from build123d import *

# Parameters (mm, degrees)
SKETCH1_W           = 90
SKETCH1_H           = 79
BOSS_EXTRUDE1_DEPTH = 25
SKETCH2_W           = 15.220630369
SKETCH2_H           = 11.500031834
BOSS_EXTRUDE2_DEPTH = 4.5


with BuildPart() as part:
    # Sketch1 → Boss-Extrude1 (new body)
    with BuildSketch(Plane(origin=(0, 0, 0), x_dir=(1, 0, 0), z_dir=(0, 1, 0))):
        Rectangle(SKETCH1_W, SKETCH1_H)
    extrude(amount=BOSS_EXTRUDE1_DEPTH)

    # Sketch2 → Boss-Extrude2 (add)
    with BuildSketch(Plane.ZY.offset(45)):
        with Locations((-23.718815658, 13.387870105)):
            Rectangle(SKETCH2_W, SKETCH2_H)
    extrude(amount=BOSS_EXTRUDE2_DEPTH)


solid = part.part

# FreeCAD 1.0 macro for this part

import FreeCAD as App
import Part
import Sketcher
from FreeCAD import Vector

doc = App.newDocument("Part")
body = doc.addObject("PartDesign::Body", "Body")

# Sketch on XZ plane
sketch1 = doc.addObject("Sketcher::SketchObject", "Sketch")
body.addObject(sketch1)
sketch1.AttachmentSupport = (doc.XZ_Plane, [""])
sketch1.MapMode = "FlatFace"
sketch1.addGeometry([
    Part.LineSegment(Vector(-45, -40, 0), Vector(-45, 40, 0)),
    Part.LineSegment(Vector(-45, 40, 0), Vector(45, 40, 0)),
    Part.LineSegment(Vector(45, 40, 0), Vector(45, -40, 0)),
    Part.LineSegment(Vector(45, -40, 0), Vector(-45, -40, 0)),
], False)
sketch1.addConstraint([
    Sketcher.Constraint("Coincident", 0, 2, 1, 1),
    Sketcher.Constraint("Coincident", 1, 2, 2, 1),
    Sketcher.Constraint("Coincident", 2, 2, 3, 1),
    Sketcher.Constraint("Coincident", 3, 2, 0, 1),
    Sketcher.Constraint("Vertical", 0),
    Sketcher.Constraint("Horizontal", 1),
    Sketcher.Constraint("Vertical", 2),
    Sketcher.Constraint("Horizontal", 3),
    Sketcher.Constraint("Symmetric", 0, 2, 2, 2, -1, 1),
    Sketcher.Constraint("DistanceX", 1, 1, 1, 2, 90.0),
    Sketcher.Constraint("DistanceY", 0, 1, 0, 2, 79.0),
])
pad1 = doc.addObject("PartDesign::Pad", "Pad")
body.addObject(pad1)
pad1.Profile = sketch1
pad1.Length = 25
pad1.Reversed = True

# Sketch on YZ plane
sketch2 = doc.addObject("Sketcher::SketchObject", "Sketch001")
body.addObject(sketch2)
sketch2.AttachmentSupport = (doc.YZ_Plane, [""])
sketch2.MapMode = "FlatFace"
sketch2.AttachmentOffset = App.Placement(Vector(0, 0, -45), App.Rotation())
sketch2.addGeometry([
    Part.LineSegment(Vector(19, -31, 0), Vector(8, -31, 0)),
    Part.LineSegment(Vector(8, -31, 0), Vector(8, -16, 0)),
    Part.LineSegment(Vector(8, -16, 0), Vector(19, -16, 0)),
    Part.LineSegment(Vector(19, -16, 0), Vector(19, -31, 0)),
], False)
sketch2.addConstraint([
    Sketcher.Constraint("Coincident", 0, 2, 1, 1),
    Sketcher.Constraint("Coincident", 1, 2, 2, 1),
    Sketcher.Constraint("Coincident", 2, 2, 3, 1),
    Sketcher.Constraint("Coincident", 3, 2, 0, 1),
    Sketcher.Constraint("Horizontal", 0),
    Sketcher.Constraint("Vertical", 1),
    Sketcher.Constraint("Horizontal", 2),
    Sketcher.Constraint("Vertical", 3),
    Sketcher.Constraint("DistanceX", 0, 2, 0, 1, 11.500032),
    Sketcher.Constraint("DistanceY", 1, 1, 1, 2, 15.22063),
    Sketcher.Constraint("DistanceY", 1, 2, -1, 1, 16.1085),
    Sketcher.Constraint("DistanceX", -1, 1, 0, 2, 7.637854),
])
pad2 = doc.addObject("PartDesign::Pad", "Pad001")
body.addObject(pad2)
pad2.Profile = sketch2
pad2.Length = 4.5
pad2.Reversed = True

doc.recompute()
